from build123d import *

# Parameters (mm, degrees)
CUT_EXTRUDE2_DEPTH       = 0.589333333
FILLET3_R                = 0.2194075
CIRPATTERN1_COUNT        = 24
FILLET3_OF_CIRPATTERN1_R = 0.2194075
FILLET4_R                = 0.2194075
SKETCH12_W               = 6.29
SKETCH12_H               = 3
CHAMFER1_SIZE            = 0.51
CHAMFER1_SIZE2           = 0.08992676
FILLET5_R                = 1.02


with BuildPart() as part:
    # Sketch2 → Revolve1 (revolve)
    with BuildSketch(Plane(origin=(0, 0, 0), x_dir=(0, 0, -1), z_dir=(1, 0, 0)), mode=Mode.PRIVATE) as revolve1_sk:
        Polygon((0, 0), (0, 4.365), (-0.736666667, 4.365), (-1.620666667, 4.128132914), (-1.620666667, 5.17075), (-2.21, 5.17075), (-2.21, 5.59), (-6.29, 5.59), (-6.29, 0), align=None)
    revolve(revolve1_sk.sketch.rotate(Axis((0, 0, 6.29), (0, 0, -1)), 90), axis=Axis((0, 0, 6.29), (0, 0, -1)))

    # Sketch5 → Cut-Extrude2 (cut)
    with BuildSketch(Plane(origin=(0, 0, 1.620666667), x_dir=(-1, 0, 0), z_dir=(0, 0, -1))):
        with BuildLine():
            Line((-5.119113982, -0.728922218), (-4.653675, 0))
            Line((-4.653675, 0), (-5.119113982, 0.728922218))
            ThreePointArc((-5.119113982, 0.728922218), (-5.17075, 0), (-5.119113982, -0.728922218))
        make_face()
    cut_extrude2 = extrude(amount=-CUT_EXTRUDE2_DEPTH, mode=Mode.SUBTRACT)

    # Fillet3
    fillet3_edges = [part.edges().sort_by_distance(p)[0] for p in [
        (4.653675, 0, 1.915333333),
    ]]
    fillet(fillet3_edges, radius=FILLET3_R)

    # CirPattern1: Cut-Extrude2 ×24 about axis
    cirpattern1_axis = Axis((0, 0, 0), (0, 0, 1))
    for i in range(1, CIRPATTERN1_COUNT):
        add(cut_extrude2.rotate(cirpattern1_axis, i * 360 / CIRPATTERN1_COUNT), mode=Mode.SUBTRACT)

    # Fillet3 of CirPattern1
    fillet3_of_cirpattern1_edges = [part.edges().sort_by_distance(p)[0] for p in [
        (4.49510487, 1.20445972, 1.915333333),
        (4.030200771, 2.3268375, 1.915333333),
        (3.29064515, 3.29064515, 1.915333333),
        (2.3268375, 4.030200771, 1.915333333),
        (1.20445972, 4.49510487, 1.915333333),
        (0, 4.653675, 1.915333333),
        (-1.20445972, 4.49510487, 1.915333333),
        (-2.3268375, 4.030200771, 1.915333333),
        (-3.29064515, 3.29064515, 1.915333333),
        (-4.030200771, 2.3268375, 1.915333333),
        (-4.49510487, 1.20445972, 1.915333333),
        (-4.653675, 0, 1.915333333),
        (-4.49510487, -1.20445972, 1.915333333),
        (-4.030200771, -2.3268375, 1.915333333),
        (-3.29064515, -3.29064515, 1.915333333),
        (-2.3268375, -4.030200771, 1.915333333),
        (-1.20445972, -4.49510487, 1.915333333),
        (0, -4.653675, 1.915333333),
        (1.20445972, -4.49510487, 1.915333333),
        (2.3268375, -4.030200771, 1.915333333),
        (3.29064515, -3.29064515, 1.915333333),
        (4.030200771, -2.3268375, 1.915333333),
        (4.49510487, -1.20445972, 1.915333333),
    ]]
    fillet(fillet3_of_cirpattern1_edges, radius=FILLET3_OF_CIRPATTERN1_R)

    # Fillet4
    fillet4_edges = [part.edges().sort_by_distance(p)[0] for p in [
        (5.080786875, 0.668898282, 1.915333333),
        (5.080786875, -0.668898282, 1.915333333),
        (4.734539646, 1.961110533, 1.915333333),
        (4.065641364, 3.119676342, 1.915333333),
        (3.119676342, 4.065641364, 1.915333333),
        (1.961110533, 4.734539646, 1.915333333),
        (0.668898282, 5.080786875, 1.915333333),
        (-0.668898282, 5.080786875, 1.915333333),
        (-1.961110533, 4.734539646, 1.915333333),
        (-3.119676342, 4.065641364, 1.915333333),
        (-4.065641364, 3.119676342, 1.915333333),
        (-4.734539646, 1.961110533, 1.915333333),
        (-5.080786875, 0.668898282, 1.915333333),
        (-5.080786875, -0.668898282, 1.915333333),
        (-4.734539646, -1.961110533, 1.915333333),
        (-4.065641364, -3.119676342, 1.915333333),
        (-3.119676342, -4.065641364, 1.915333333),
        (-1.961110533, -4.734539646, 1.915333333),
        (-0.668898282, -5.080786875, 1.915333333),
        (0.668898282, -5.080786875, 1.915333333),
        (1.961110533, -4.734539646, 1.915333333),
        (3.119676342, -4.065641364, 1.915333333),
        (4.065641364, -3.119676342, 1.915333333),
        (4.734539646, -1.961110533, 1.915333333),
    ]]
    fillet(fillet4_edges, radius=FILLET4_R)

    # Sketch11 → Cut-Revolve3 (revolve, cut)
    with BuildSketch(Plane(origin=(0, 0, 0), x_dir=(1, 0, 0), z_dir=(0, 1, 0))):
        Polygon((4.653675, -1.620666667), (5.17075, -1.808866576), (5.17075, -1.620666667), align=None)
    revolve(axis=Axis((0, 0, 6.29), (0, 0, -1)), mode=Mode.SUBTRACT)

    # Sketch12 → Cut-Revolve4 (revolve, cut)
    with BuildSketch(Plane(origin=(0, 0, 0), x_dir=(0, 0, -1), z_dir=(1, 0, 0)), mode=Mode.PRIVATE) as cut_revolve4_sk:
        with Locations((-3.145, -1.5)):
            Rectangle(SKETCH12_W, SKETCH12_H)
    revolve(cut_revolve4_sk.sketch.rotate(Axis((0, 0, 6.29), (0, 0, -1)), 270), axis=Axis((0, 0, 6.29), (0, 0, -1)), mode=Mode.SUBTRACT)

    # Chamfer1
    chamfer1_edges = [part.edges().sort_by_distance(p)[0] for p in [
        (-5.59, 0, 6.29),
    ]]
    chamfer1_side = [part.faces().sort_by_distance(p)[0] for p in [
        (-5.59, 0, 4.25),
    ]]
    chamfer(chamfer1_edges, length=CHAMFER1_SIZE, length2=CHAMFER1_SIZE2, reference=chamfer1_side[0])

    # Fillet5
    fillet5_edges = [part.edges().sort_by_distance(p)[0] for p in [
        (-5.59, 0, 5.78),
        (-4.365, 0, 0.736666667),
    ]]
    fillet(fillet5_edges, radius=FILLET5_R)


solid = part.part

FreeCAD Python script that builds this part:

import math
import FreeCAD as App
import Part
import Sketcher

V = App.Vector
Q = App.Units.Quantity


def edges_at(feature, points):
    """Names of the edges that pass closest to the given points."""
    edges = feature.Shape.Edges
    near = lambda p: min(range(len(edges)), key=lambda i: edges[i].distToShape(Part.Vertex(*p))[0])
    return sorted({f"Edge{near(p) + 1}" for p in points})

doc = App.newDocument("Part")
body = doc.addObject("PartDesign::Body", "Body")

# Sketch on YZ plane
sketch1 = body.newObject("Sketcher::SketchObject", "Sketch")
sketch1.AttachmentSupport = (doc.getObject("YZ_Plane"), [""])
sketch1.MapMode = "FlatFace"
sketch1.addGeometry([
    Part.LineSegment(V(0, 0, 0), V(4.37, 0, 0)),  # 0
    Part.LineSegment(V(4.37, 0, 0), V(4.37, 0.74, 0)),  # 1
    Part.LineSegment(V(4.37, 0.74, 0), V(4.13, 1.62, 0)),  # 2
    Part.LineSegment(V(4.13, 1.62, 0), V(5.17, 1.62, 0)),  # 3
    Part.LineSegment(V(5.17, 1.62, 0), V(5.17, 2.21, 0)),  # 4
    Part.LineSegment(V(5.17, 2.21, 0), V(5.59, 2.21, 0)),  # 5
    Part.LineSegment(V(5.59, 2.21, 0), V(5.59, 6.29, 0)),  # 6
    Part.LineSegment(V(5.59, 6.29, 0), V(0, 6.29, 0)),  # 7
    Part.LineSegment(V(0, 6.29, 0), V(0, 0, 0)),  # 8
], False)
sketch1.addConstraint([
    Sketcher.Constraint("Coincident", 0, 2, 1, 1),
    Sketcher.Constraint("Coincident", 1, 2, 2, 1),
    Sketcher.Constraint("Coincident", 2, 2, 3, 1),
    Sketcher.Constraint("Coincident", 3, 2, 4, 1),
    Sketcher.Constraint("Coincident", 4, 2, 5, 1),
    Sketcher.Constraint("Coincident", 5, 2, 6, 1),
    Sketcher.Constraint("Coincident", 6, 2, 7, 1),
    Sketcher.Constraint("Coincident", 7, 2, 8, 1),
    Sketcher.Constraint("Coincident", 8, 2, 0, 1),
    Sketcher.Constraint("Horizontal", 0),
    Sketcher.Constraint("Vertical", 1),
    Sketcher.Constraint("Horizontal", 3),
    Sketcher.Constraint("Vertical", 4),
    Sketcher.Constraint("Horizontal", 5),
    Sketcher.Constraint("Vertical", 6),
    Sketcher.Constraint("Horizontal", 7),
    Sketcher.Constraint("Vertical", 8),
    Sketcher.Constraint("Coincident", 8, 2, -1, 1),
    Sketcher.Constraint("Angle", 2, Q("105 deg")),
    Sketcher.Constraint("DistanceX", 7, 2, 7, 1, Q("5.59 mm")),
    Sketcher.Constraint("DistanceY", 6, 1, 6, 2, Q("4.08 mm")),
    Sketcher.Constraint("DistanceY", 8, 2, 8, 1, Q("6.29 mm")),
    Sketcher.Constraint("DistanceX", 0, 1, 0, 2, Q("4.365 mm")),
    Sketcher.Constraint("DistanceY", 1, 2, 2, 2, Q("0.884 mm")),
    Sketcher.Constraint("DistanceX", 5, 1, 5, 2, Q("0.41925 mm")),
    Sketcher.Constraint("DistanceY", 1, 1, 1, 2, Q("0.736667 mm")),
])
revolution = body.newObject("PartDesign::Revolution", "Revolution")
revolution.Profile = sketch1
revolution.ReferenceAxis = (sketch1, ["V_Axis"])
revolution.Angle = 360

# Sketch on XY plane
sketch2 = body.newObject("Sketcher::SketchObject", "Sketch001")
sketch2.AttachmentSupport = (doc.getObject("XY_Plane"), [""])
sketch2.MapMode = "FlatFace"
sketch2.AttachmentOffset = App.Placement(V(0, 0, 1.620667), App.Rotation())
sketch2.addGeometry([
    Part.LineSegment(V(5.1, -0.7, 0), V(4.7, 0, 0)),
    Part.LineSegment(V(4.7, 0, 0), V(5.1, 0.7, 0)),
    Part.ArcOfCircle(Part.Circle(V(0, 0, 0), V(0, 0, 1), 5.2), math.radians(-8.1), math.radians(8.1)),
], False)
sketch2.addConstraint([
    Sketcher.Constraint("Coincident", 0, 2, 1, 1),
    Sketcher.Constraint("Coincident", 1, 2, 2, 2),
    Sketcher.Constraint("Coincident", 2, 1, 0, 1),
    Sketcher.Constraint("Coincident", 2, 3, -1, 1),
    Sketcher.Constraint("PointOnObject", 0, 2, -1),
    Sketcher.Constraint("Vertical", 1, 2, 2, 1),
    Sketcher.Constraint("Radius", 2, Q("5.17075 mm")),
    Sketcher.Constraint("DistanceX", 0, 2, 1, 2, Q("0.465439 mm")),
    Sketcher.Constraint("Distance", 0, Q("0.864847 mm")),
])
pocket1 = body.newObject("PartDesign::Pocket", "Pocket")
pocket1.Profile = sketch2
pocket1.Length = 0.589333
pocket1.Reversed = True
doc.recompute()

fillet = body.newObject("PartDesign::Fillet", "Fillet")
fillet.Base = (pocket1, edges_at(pocket1, [(4.654, 0, 1.915)]))
fillet.Radius = 0.219408
doc.recompute()

polarpattern = body.newObject("PartDesign::PolarPattern", "PolarPattern")
polarpattern.Originals = [pocket1]
polarpattern.Axis = (doc.getObject("Z_Axis"), [""])
polarpattern.Angle = 360
polarpattern.Occurrences = 24
body.Tip = polarpattern
doc.recompute()

fillet2 = body.newObject("PartDesign::Fillet", "Fillet001")
fillet2.Base = (polarpattern, edges_at(polarpattern, [
    (4.495, 1.204, 1.915),
    (4.03, 2.327, 1.915),
    (3.291, 3.291, 1.915),
    (2.327, 4.03, 1.915),
    (1.204, 4.495, 1.915),
    (0, 4.654, 1.915),
    (-1.204, 4.495, 1.915),
    (-2.327, 4.03, 1.915),
    (-3.291, 3.291, 1.915),
    (-4.03, 2.327, 1.915),
    (-4.495, 1.204, 1.915),
    (-4.654, 0, 1.915),
    (-4.495, -1.204, 1.915),
    (-4.03, -2.327, 1.915),
    (-3.291, -3.291, 1.915),
    (-2.327, -4.03, 1.915),
    (-1.204, -4.495, 1.915),
    (0, -4.654, 1.915),
    (1.204, -4.495, 1.915),
    (2.327, -4.03, 1.915),
    (3.291, -3.291, 1.915),
    (4.03, -2.327, 1.915),
    (4.495, -1.204, 1.915),
]))
fillet2.Radius = 0.219408
doc.recompute()

fillet3 = body.newObject("PartDesign::Fillet", "Fillet002")
fillet3.Base = (fillet2, edges_at(fillet2, [
    (5.081, 0.669, 1.915),
    (5.081, -0.669, 1.915),
    (4.735, 1.961, 1.915),
    (4.066, 3.12, 1.915),
    (3.12, 4.066, 1.915),
    (1.961, 4.735, 1.915),
    (0.669, 5.081, 1.915),
    (-0.669, 5.081, 1.915),
    (-1.961, 4.735, 1.915),
    (-3.12, 4.066, 1.915),
    (-4.066, 3.12, 1.915),
    (-4.735, 1.961, 1.915),
    (-5.081, 0.669, 1.915),
    (-5.081, -0.669, 1.915),
    (-4.735, -1.961, 1.915),
    (-4.066, -3.12, 1.915),
    (-3.12, -4.066, 1.915),
    (-1.961, -4.735, 1.915),
    (-0.669, -5.081, 1.915),
    (0.669, -5.081, 1.915),
    (1.961, -4.735, 1.915),
    (3.12, -4.066, 1.915),
    (4.066, -3.12, 1.915),
    (4.735, -1.961, 1.915),
]))
fillet3.Radius = 0.219408

# Sketch on XZ plane
sketch3 = body.newObject("Sketcher::SketchObject", "Sketch002")
sketch3.AttachmentSupport = (doc.getObject("XZ_Plane"), [""])
sketch3.MapMode = "FlatFace"
sketch3.addGeometry([
    Part.LineSegment(V(4.65, 1.62, 0), V(5.17, 1.81, 0)),
    Part.LineSegment(V(5.17, 1.81, 0), V(5.17, 1.62, 0)),
    Part.LineSegment(V(5.17, 1.62, 0), V(4.65, 1.62, 0)),
], False)
sketch3.addConstraint([
    Sketcher.Constraint("Coincident", 0, 2, 1, 1),
    Sketcher.Constraint("Coincident", 1, 2, 2, 1),
    Sketcher.Constraint("Coincident", 2, 2, 0, 1),
    Sketcher.Constraint("Vertical", 1),
    Sketcher.Constraint("Horizontal", 2),
    Sketcher.Constraint("Angle", 0, Q("20 deg")),
    Sketcher.Constraint("DistanceY", 1, 2, 1, 1, Q("0.1882 mm")),
    Sketcher.Constraint("DistanceX", -1, 1, 0, 2, Q("5.17075 mm")),
    Sketcher.Constraint("DistanceY", -1, 1, 0, 2, Q("1.808867 mm")),
])
groove = body.newObject("PartDesign::Groove", "Groove")
groove.Profile = sketch3
groove.ReferenceAxis = (sketch3, ["V_Axis"])
groove.Angle = 360

# Sketch on YZ plane
sketch4 = body.newObject("Sketcher::SketchObject", "Sketch003")
sketch4.AttachmentSupport = (doc.getObject("YZ_Plane"), [""])
sketch4.MapMode = "FlatFace"
sketch4.addGeometry([
    Part.LineSegment(V(0, 6.3, 0), V(-3, 6.3, 0)),
    Part.LineSegment(V(-3, 6.3, 0), V(-3, 0, 0)),
    Part.LineSegment(V(-3, 0, 0), V(0, 0, 0)),
    Part.LineSegment(V(0, 0, 0), V(0, 6.3, 0)),
], False)
sketch4.addConstraint([
    Sketcher.Constraint("Coincident", 0, 2, 1, 1),
    Sketcher.Constraint("Coincident", 1, 2, 2, 1),
    Sketcher.Constraint("Coincident", 2, 2, 3, 1),
    Sketcher.Constraint("Coincident", 3, 2, 0, 1),
    Sketcher.Constraint("Horizontal", 0),
    Sketcher.Constraint("Vertical", 1),
    Sketcher.Constraint("Horizontal", 2),
    Sketcher.Constraint("Vertical", 3),
    Sketcher.Constraint("Coincident", 2, 2, -1, 1),
    Sketcher.Constraint("DistanceX", 0, 2, 0, 1, Q("3 mm")),
    Sketcher.Constraint("DistanceY", 1, 2, 1, 1, Q("6.29 mm")),
])
groove2 = body.newObject("PartDesign::Groove", "Groove001")
groove2.Profile = sketch4
groove2.ReferenceAxis = (sketch4, ["V_Axis"])
groove2.Angle = 360
doc.recompute()

chamfer = body.newObject("PartDesign::Chamfer", "Chamfer")
chamfer.Base = (groove2, edges_at(groove2, [(-5.59, 0, 6.29)]))
chamfer.ChamferType = "Two distances"
chamfer.Size = 0.51
chamfer.Size2 = 0.089927
doc.recompute()

fillet4 = body.newObject("PartDesign::Fillet", "Fillet003")
fillet4.Base = (chamfer, edges_at(chamfer, [(-5.59, 0, 5.78), (-4.365, 0, 0.737)]))
fillet4.Radius = 1.02

doc.recompute()
